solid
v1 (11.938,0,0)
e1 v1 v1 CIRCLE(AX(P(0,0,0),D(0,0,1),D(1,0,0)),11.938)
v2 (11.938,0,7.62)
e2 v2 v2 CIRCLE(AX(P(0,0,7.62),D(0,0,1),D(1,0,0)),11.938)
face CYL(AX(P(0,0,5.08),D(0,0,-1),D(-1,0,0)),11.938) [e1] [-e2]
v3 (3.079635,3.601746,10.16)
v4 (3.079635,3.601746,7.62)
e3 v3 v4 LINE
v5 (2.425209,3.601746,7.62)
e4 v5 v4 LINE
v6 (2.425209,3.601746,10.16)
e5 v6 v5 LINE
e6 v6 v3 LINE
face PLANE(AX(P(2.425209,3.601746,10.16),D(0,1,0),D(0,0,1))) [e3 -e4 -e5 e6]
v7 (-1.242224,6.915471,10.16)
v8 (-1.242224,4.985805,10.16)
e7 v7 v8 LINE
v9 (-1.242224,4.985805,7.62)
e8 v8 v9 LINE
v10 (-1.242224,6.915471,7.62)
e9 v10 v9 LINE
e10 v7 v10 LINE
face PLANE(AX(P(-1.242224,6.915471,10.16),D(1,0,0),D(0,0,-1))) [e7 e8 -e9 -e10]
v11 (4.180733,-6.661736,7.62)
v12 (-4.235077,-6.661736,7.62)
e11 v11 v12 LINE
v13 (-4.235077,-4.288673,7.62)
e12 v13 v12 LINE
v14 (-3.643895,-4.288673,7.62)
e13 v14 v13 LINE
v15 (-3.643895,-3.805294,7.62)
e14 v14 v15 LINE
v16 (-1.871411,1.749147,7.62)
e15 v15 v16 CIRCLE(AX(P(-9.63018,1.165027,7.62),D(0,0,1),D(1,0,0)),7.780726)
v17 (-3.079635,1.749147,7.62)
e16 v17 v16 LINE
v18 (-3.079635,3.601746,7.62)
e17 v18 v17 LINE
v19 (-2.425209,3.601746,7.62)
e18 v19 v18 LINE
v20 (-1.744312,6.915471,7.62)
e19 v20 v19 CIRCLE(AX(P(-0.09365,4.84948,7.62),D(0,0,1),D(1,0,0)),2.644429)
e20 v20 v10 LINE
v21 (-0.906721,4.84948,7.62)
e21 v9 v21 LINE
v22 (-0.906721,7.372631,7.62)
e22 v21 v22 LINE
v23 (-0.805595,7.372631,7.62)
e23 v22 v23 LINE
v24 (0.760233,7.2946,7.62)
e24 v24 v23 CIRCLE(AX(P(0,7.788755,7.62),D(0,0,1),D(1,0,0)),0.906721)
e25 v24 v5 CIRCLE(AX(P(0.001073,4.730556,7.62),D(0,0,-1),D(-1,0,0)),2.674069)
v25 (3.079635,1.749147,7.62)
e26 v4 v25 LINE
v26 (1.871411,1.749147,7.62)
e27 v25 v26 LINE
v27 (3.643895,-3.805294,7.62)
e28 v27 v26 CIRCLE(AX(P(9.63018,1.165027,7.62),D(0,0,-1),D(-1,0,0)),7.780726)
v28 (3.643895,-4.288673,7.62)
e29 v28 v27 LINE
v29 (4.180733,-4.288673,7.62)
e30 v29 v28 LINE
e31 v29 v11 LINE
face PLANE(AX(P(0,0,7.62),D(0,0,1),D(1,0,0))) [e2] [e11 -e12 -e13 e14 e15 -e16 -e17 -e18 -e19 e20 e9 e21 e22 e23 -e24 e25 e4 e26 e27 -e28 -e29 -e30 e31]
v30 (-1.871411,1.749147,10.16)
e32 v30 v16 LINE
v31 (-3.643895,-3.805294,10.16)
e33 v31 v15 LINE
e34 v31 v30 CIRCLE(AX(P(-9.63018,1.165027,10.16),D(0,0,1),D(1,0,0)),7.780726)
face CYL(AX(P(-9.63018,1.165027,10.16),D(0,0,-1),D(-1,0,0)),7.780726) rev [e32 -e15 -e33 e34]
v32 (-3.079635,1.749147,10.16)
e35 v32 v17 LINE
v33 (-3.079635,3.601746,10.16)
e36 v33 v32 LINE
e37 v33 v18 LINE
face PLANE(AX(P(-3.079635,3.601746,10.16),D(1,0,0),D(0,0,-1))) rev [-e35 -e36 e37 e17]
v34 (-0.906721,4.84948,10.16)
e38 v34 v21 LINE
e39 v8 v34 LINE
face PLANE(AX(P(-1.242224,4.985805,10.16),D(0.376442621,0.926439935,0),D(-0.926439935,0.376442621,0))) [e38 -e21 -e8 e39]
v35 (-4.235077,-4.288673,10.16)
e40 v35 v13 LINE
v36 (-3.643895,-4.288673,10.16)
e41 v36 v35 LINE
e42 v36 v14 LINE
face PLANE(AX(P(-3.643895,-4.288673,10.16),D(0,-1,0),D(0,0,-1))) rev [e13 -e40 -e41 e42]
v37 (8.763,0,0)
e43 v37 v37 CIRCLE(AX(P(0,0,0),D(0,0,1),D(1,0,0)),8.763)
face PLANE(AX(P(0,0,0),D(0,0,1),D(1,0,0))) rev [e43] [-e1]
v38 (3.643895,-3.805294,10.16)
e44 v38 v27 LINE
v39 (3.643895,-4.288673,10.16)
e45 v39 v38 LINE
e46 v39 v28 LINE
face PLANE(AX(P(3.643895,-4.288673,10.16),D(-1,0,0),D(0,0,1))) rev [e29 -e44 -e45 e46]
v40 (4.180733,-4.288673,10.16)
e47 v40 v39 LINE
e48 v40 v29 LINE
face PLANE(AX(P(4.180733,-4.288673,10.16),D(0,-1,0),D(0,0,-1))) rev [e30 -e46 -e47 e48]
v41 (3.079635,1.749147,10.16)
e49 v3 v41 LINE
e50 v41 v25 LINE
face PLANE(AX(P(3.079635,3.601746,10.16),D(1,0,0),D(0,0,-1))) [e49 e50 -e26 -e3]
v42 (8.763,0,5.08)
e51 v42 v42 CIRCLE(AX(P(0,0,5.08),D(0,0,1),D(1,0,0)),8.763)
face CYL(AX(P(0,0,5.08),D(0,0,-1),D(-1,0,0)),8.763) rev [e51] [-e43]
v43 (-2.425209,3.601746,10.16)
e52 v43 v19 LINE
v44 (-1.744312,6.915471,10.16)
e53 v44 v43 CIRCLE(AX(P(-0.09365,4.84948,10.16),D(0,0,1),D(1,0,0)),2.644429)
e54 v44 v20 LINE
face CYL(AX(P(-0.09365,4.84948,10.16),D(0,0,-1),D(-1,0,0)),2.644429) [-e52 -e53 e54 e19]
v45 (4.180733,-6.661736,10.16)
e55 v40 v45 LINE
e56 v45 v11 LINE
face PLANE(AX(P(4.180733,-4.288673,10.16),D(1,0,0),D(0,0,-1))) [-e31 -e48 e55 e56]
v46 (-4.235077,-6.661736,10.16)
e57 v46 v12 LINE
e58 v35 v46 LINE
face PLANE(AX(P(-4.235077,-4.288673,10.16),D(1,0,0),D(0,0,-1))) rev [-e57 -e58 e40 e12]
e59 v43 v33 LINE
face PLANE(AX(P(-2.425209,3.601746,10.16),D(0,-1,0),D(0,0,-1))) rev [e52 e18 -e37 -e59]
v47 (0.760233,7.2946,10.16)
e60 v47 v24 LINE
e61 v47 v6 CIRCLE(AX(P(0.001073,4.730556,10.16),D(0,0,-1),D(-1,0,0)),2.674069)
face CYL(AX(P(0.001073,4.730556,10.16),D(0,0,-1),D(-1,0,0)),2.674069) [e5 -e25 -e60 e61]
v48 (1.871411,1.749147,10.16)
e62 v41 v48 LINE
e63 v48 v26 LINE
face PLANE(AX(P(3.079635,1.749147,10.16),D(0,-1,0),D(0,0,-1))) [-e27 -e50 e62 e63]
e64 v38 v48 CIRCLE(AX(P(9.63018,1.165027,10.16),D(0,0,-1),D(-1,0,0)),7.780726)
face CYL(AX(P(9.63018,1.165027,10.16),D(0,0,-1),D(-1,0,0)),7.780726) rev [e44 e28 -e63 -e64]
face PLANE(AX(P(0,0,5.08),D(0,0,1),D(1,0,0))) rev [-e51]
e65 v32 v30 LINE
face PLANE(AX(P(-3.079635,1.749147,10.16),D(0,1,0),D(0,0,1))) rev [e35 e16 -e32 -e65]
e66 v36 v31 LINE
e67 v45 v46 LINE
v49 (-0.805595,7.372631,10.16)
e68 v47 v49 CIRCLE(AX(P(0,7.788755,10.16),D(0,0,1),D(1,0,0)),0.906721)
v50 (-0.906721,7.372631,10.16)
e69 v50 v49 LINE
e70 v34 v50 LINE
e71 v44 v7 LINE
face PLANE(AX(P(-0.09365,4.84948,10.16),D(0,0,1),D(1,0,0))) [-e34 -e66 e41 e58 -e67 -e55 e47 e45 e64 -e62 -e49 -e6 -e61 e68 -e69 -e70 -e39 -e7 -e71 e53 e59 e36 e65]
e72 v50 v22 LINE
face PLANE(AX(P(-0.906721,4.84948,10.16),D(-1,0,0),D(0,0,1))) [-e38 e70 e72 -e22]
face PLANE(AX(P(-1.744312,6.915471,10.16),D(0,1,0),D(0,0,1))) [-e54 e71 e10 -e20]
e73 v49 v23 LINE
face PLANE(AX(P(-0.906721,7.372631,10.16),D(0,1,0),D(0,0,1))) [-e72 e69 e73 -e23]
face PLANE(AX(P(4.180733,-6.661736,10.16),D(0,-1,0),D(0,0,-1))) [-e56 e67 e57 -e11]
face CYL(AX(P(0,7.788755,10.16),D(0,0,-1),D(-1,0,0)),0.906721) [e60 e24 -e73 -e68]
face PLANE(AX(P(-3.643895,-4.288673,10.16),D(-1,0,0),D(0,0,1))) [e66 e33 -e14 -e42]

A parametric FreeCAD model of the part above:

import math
import FreeCAD as App
import Part
import Sketcher
from FreeCAD import Vector
Q = App.Units.Quantity

doc = App.newDocument("Part")
body = doc.addObject("PartDesign::Body", "Body")

sketch1 = body.newObject("Sketcher::SketchObject", "Sketch")
sketch1.AttachmentSupport = (doc.getObject("XY_Plane"), [""])
sketch1.MapMode = "FlatFace"
sketch1.addGeometry([
    Part.Circle(Vector(0, 0, 0), Vector(0, 0, 1), 12),
    Part.Circle(Vector(0, 0, 0), Vector(0, 0, 1), 9),
], False)
sketch1.addConstraint([
    Sketcher.Constraint("Coincident", 0, 3, -1, 1),
    Sketcher.Constraint("Coincident", 1, 3, -1, 1),
    Sketcher.Constraint("Diameter", 0, Q("0.94 in")),
    Sketcher.Constraint("Diameter", 1, Q("0.69 in")),
])
pad1 = body.newObject("PartDesign::Pad", "Pad")
pad1.Profile = sketch1
pad1.Length = Q("0.2 in")

sketch2 = body.newObject("Sketcher::SketchObject", "Sketch001")
sketch2.AttachmentSupport = (doc.getObject("XY_Plane"), [""])
sketch2.MapMode = "FlatFace"
sketch2.AttachmentOffset = App.Placement(Vector(0, 0, 0.2 * 25.4), App.Rotation())
sketch2.addGeometry(Part.Circle(Vector(0, 0, 0), Vector(0, 0, 1), 12), False)
sketch2.addConstraint([
    Sketcher.Constraint("Coincident", 0, 3, -1, 1),
    Sketcher.Constraint("Diameter", 0, Q("0.94 in")),
])
pad2 = body.newObject("PartDesign::Pad", "Pad001")
pad2.Profile = sketch2
pad2.Length = Q("0.1 in")

sketch3 = body.newObject("Sketcher::SketchObject", "Sketch002")
sketch3.AttachmentSupport = (doc.getObject("XY_Plane"), [""])
sketch3.MapMode = "FlatFace"
sketch3.AttachmentOffset = App.Placement(Vector(0, 0, 0.3 * 25.4), App.Rotation())
sketch3.addGeometry([
    Part.LineSegment(Vector(-3.64, -3.81, 0), Vector(-3.64, -4.29, 0)),
    Part.LineSegment(Vector(-3.64, -4.29, 0), Vector(-4.24, -4.29, 0)),
    Part.LineSegment(Vector(-4.24, -4.29, 0), Vector(-4.24, -6.66, 0)),
    Part.LineSegment(Vector(-4.24, -6.66, 0), Vector(4.18, -6.66, 0)),
    Part.LineSegment(Vector(4.18, -6.66, 0), Vector(4.18, -4.29, 0)),
    Part.LineSegment(Vector(4.18, -4.29, 0), Vector(3.64, -4.29, 0)),
    Part.LineSegment(Vector(3.64, -4.29, 0), Vector(3.64, -3.81, 0)),
    Part.ArcOfCircle(Part.Circle(Vector(9.63, 1.17, 0), Vector(0, 0, 1), 7.78), math.radians(176), math.radians(220)),
    Part.LineSegment(Vector(1.87, 1.75, 0), Vector(3.08, 1.75, 0)),
    Part.LineSegment(Vector(3.08, 1.75, 0), Vector(3.08, 3.6, 0)),
    Part.LineSegment(Vector(3.08, 3.6, 0), Vector(2.43, 3.6, 0)),
    Part.ArcOfCircle(Part.Circle(Vector(0, 4.73, 0), Vector(0, 0, 1), 2.67), math.radians(-25), math.radians(74)),
    Part.ArcOfCircle(Part.Circle(Vector(0, 7.79, 0), Vector(0, 0, 1), 0.91), math.radians(-33), math.radians(207)),
    Part.LineSegment(Vector(-0.81, 7.37, 0), Vector(-0.91, 7.37, 0)),
    Part.LineSegment(Vector(-0.91, 7.37, 0), Vector(-0.91, 4.85, 0)),
    Part.LineSegment(Vector(-0.91, 4.85, 0), Vector(-1.24, 4.99, 0)),
    Part.LineSegment(Vector(-1.24, 4.99, 0), Vector(-1.24, 6.92, 0)),
    Part.LineSegment(Vector(-1.24, 6.92, 0), Vector(-1.74, 6.92, 0)),
    Part.ArcOfCircle(Part.Circle(Vector(-0.09, 4.85, 0), Vector(0, 0, 1), 2.64), math.radians(129), math.radians(208)),
    Part.LineSegment(Vector(-2.43, 3.6, 0), Vector(-3.08, 3.6, 0)),
    Part.LineSegment(Vector(-3.08, 3.6, 0), Vector(-3.08, 1.75, 0)),
    Part.LineSegment(Vector(-3.08, 1.75, 0), Vector(-1.87, 1.75, 0)),
    Part.ArcOfCircle(Part.Circle(Vector(-9.63, 1.17, 0), Vector(0, 0, 1), 7.78), math.radians(-40), math.radians(4)),
], False)
sketch3.addConstraint([
    Sketcher.Constraint("Coincident", 0, 2, 1, 1),
    Sketcher.Constraint("Coincident", 1, 2, 2, 1),
    Sketcher.Constraint("Coincident", 2, 2, 3, 1),
    Sketcher.Constraint("Coincident", 3, 2, 4, 1),
    Sketcher.Constraint("Coincident", 4, 2, 5, 1),
    Sketcher.Constraint("Coincident", 5, 2, 6, 1),
    Sketcher.Constraint("Coincident", 6, 2, 7, 2),
    Sketcher.Constraint("Coincident", 7, 1, 8, 1),
    Sketcher.Constraint("Coincident", 8, 2, 9, 1),
    Sketcher.Constraint("Coincident", 9, 2, 10, 1),
    Sketcher.Constraint("Coincident", 10, 2, 11, 1),
    Sketcher.Constraint("Coincident", 11, 2, 12, 1),
    Sketcher.Constraint("Coincident", 12, 2, 13, 1),
    Sketcher.Constraint("Coincident", 13, 2, 14, 1),
    Sketcher.Constraint("Coincident", 14, 2, 15, 1),
    Sketcher.Constraint("Coincident", 15, 2, 16, 1),
    Sketcher.Constraint("Coincident", 16, 2, 17, 1),
    Sketcher.Constraint("Coincident", 17, 2, 18, 1),
    Sketcher.Constraint("Coincident", 18, 2, 19, 1),
    Sketcher.Constraint("Coincident", 19, 2, 20, 1),
    Sketcher.Constraint("Coincident", 20, 2, 21, 1),
    Sketcher.Constraint("Coincident", 21, 2, 22, 2),
    Sketcher.Constraint("Coincident", 22, 1, 0, 1),
    Sketcher.Constraint("Vertical", 0),
    Sketcher.Constraint("Horizontal", 1),
    Sketcher.Constraint("Vertical", 2),
    Sketcher.Constraint("Horizontal", 3),
    Sketcher.Constraint("Vertical", 4),
    Sketcher.Constraint("Horizontal", 5),
    Sketcher.Constraint("Vertical", 6),
    Sketcher.Constraint("Horizontal", 8),
    Sketcher.Constraint("Vertical", 9),
    Sketcher.Constraint("Horizontal", 10),
    Sketcher.Constraint("Horizontal", 13),
    Sketcher.Constraint("Vertical", 14),
    Sketcher.Constraint("Vertical", 16),
    Sketcher.Constraint("Horizontal", 17),
    Sketcher.Constraint("Horizontal", 19),
    Sketcher.Constraint("Vertical", 20),
    Sketcher.Constraint("Horizontal", 21),
    Sketcher.Constraint("Equal", 7, 22),
    Sketcher.Constraint("Symmetric", 7, 3, 22, 3, -2),
    Sketcher.Constraint("Symmetric", 0, 2, 5, 2, -2),
    Sketcher.Constraint("Symmetric", 10, 2, 18, 2, -2),
    Sketcher.Constraint("Symmetric", 8, 2, 20, 2, -2),
    Sketcher.Constraint("PointOnObject", 12, 3, -2),
    Sketcher.Constraint("Horizontal", 18, 3, 14, 2),
    Sketcher.Constraint("Radius", 11, 2.674069),
    Sketcher.Constraint("Radius", 12, 0.906721),
    Sketcher.Constraint("Radius", 18, 2.644429),
    Sketcher.Constraint("DistanceY", 9, 1, 9, 2, 1.852599),
    Sketcher.Constraint("Radius", 7, 7.780726),
    Sketcher.Constraint("DistanceX", 3, 1, 3, 2, 8.415811),
    Sketcher.Constraint("DistanceX", 5, 2, 5, 1, 0.536839),
    Sketcher.Constraint("DistanceY", 0, 2, 0, 1, 0.48338),
    Sketcher.Constraint("DistanceY", 14, 2, 14, 1, 2.523151),
    Sketcher.Constraint("DistanceY", -1, 1, 11, 2, 7.2946),
    Sketcher.Constraint("DistanceY", 11, 3, 12, 3, 3.058199),
    Sketcher.Constraint("DistanceY", 0, 2, 22, 3, 5.453701),
    Sketcher.Constraint("DistanceX", 7, 1, 10, 2, 0.553798),
    Sketcher.Constraint("DistanceX", 1, 2, 1, 1, 0.591182),
    Sketcher.Constraint("DistanceX", 8, 1, 8, 2, 1.208224),
    Sketcher.Constraint("DistanceX", 13, 2, 13, 1, 0.101126),
    Sketcher.Constraint("DistanceX", 17, 2, 17, 1, 0.502088),
    Sketcher.Constraint("DistanceY", 2, 2, 2, 1, 2.373063),
    Sketcher.Constraint("DistanceY", 16, 1, 16, 2, 1.929666),
    Sketcher.Constraint("DistanceX", 18, 3, -1, 1, 0.09365),
    Sketcher.Constraint("DistanceY", -1, 1, 18, 3, 4.84948),
    Sketcher.Constraint("DistanceX", -1, 1, 7, 1, 1.871411),
    Sketcher.Constraint("DistanceY", -1, 1, 16, 2, 6.915471),
])
pad3 = body.newObject("PartDesign::Pad", "Pad002")
pad3.Profile = sketch3
pad3.Length = Q("0.1 in")

doc.recompute()
